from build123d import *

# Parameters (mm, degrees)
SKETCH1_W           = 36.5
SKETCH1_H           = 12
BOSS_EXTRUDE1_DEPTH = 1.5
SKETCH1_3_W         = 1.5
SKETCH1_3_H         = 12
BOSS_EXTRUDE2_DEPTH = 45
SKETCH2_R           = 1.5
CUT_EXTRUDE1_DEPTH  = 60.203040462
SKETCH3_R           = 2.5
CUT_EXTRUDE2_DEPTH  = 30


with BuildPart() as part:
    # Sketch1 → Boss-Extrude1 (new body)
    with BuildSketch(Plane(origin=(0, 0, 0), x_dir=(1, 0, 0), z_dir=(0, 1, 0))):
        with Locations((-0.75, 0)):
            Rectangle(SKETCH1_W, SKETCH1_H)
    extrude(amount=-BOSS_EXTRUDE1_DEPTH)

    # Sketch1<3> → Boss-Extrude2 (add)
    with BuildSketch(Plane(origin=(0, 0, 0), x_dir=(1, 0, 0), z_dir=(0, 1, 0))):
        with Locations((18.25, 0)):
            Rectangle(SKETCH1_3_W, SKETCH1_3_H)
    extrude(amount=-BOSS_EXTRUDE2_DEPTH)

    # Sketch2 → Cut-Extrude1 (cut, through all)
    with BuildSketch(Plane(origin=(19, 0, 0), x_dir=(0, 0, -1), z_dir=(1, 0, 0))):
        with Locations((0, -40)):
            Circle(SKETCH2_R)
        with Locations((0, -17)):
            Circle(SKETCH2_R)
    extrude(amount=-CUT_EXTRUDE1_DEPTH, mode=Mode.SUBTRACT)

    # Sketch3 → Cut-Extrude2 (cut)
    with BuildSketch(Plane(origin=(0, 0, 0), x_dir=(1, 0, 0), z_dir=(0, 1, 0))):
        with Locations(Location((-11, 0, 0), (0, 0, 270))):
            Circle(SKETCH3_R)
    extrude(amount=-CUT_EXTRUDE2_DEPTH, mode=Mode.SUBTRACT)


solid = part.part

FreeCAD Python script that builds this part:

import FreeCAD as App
import Part
import Sketcher

V = App.Vector


def add_polygon(sketch, points):
    """Adds a closed chain of lines whose ends are joined by coincident constraints."""
    first, n = sketch.GeometryCount, len(points)
    for a, b in zip(points, points[1:] + points[:1]):
        sketch.addGeometry(Part.LineSegment(App.Vector(*a, 0), App.Vector(*b, 0)), False)
    for i in range(n):
        sketch.addConstraint(Sketcher.Constraint("Coincident", first + i, 2, first + (i + 1) % n, 1))

doc = App.newDocument("Part")
body = doc.addObject("PartDesign::Body", "Body")

sketch1 = body.newObject("Sketcher::SketchObject", "Sketch")
sketch1.AttachmentSupport = (doc.getObject("XZ_Plane"), [""])
sketch1.MapMode = "FlatFace"
add_polygon(sketch1, [(-19, -6), (-19, 6), (18, 6), (18, -6)])
sketch1.addConstraint(Sketcher.Constraint("Vertical", 0))
sketch1.addConstraint(Sketcher.Constraint("Horizontal", 1))
sketch1.addConstraint(Sketcher.Constraint("Vertical", 2))
sketch1.addConstraint(Sketcher.Constraint("Horizontal", 3))
sketch1.addConstraint(Sketcher.Constraint("DistanceY", 0, 1, 0, 2, 12.0))
sketch1.addConstraint(Sketcher.Constraint("DistanceX", 1, 1, 1, 2, 36.5))
sketch1.addConstraint(Sketcher.Constraint("DistanceX", 0, 2, -1, 1, 19.0))
sketch1.addConstraint(Sketcher.Constraint("DistanceY", -1, 1, 0, 2, 6.0))
pad1 = body.newObject("PartDesign::Pad", "Pad")
pad1.Profile = sketch1
pad1.Length = 1.5

sketch2 = body.newObject("Sketcher::SketchObject", "Sketch001")
sketch2.AttachmentSupport = (doc.getObject("XZ_Plane"), [""])
sketch2.MapMode = "FlatFace"
add_polygon(sketch2, [(17.5, -6), (17.5, 6), (19, 6), (19, -6)])
sketch2.addConstraint(Sketcher.Constraint("Vertical", 0))
sketch2.addConstraint(Sketcher.Constraint("Horizontal", 1))
sketch2.addConstraint(Sketcher.Constraint("Vertical", 2))
sketch2.addConstraint(Sketcher.Constraint("Horizontal", 3))
sketch2.addConstraint(Sketcher.Constraint("DistanceY", 0, 1, 0, 2, 12.0))
sketch2.addConstraint(Sketcher.Constraint("DistanceX", 1, 1, 1, 2, 1.5))
sketch2.addConstraint(Sketcher.Constraint("DistanceY", -1, 1, 0, 2, 6.0))
sketch2.addConstraint(Sketcher.Constraint("DistanceX", -1, 1, 1, 2, 19.0))
pad2 = body.newObject("PartDesign::Pad", "Pad001")
pad2.Profile = sketch2
pad2.Length = 45

sketch3 = body.newObject("Sketcher::SketchObject", "Sketch002")
sketch3.AttachmentSupport = (doc.getObject("YZ_Plane"), [""])
sketch3.MapMode = "FlatFace"
sketch3.AttachmentOffset = App.Placement(V(0, 0, 19), App.Rotation())
sketch3.addGeometry(Part.Circle(V(-40, 0, 0), V(0, 0, 1), 1.5), False)
sketch3.addGeometry(Part.Circle(V(-17, 0, 0), V(0, 0, 1), 1.5), False)
sketch3.addConstraint(Sketcher.Constraint("Equal", 0, 1))
sketch3.addConstraint(Sketcher.Constraint("PointOnObject", 0, 3, -1))
sketch3.addConstraint(Sketcher.Constraint("PointOnObject", 1, 3, -1))
sketch3.addConstraint(Sketcher.Constraint("Diameter", 0, 3.0))
sketch3.addConstraint(Sketcher.Constraint("DistanceX", 0, 3, -1, 1, 40.0))
sketch3.addConstraint(Sketcher.Constraint("DistanceX", 1, 3, -1, 1, 17.0))
pocket1 = body.newObject("PartDesign::Pocket", "Pocket")
pocket1.Profile = sketch3
pocket1.Type = "ThroughAll"

sketch4 = body.newObject("Sketcher::SketchObject", "Sketch003")
sketch4.AttachmentSupport = (doc.getObject("XZ_Plane"), [""])
sketch4.MapMode = "FlatFace"
sketch4.addGeometry(Part.Circle(V(-11, 0, 0), V(0, 0, 1), 2.5), False)
sketch4.addConstraint(Sketcher.Constraint("PointOnObject", 0, 3, -1))
sketch4.addConstraint(Sketcher.Constraint("Diameter", 0, 5.0))
sketch4.addConstraint(Sketcher.Constraint("DistanceX", 0, 3, -1, 1, 11.0))
pocket2 = body.newObject("PartDesign::Pocket", "Pocket001")
pocket2.Profile = sketch4
pocket2.Length = 30
pocket2.Reversed = True

doc.recompute()
